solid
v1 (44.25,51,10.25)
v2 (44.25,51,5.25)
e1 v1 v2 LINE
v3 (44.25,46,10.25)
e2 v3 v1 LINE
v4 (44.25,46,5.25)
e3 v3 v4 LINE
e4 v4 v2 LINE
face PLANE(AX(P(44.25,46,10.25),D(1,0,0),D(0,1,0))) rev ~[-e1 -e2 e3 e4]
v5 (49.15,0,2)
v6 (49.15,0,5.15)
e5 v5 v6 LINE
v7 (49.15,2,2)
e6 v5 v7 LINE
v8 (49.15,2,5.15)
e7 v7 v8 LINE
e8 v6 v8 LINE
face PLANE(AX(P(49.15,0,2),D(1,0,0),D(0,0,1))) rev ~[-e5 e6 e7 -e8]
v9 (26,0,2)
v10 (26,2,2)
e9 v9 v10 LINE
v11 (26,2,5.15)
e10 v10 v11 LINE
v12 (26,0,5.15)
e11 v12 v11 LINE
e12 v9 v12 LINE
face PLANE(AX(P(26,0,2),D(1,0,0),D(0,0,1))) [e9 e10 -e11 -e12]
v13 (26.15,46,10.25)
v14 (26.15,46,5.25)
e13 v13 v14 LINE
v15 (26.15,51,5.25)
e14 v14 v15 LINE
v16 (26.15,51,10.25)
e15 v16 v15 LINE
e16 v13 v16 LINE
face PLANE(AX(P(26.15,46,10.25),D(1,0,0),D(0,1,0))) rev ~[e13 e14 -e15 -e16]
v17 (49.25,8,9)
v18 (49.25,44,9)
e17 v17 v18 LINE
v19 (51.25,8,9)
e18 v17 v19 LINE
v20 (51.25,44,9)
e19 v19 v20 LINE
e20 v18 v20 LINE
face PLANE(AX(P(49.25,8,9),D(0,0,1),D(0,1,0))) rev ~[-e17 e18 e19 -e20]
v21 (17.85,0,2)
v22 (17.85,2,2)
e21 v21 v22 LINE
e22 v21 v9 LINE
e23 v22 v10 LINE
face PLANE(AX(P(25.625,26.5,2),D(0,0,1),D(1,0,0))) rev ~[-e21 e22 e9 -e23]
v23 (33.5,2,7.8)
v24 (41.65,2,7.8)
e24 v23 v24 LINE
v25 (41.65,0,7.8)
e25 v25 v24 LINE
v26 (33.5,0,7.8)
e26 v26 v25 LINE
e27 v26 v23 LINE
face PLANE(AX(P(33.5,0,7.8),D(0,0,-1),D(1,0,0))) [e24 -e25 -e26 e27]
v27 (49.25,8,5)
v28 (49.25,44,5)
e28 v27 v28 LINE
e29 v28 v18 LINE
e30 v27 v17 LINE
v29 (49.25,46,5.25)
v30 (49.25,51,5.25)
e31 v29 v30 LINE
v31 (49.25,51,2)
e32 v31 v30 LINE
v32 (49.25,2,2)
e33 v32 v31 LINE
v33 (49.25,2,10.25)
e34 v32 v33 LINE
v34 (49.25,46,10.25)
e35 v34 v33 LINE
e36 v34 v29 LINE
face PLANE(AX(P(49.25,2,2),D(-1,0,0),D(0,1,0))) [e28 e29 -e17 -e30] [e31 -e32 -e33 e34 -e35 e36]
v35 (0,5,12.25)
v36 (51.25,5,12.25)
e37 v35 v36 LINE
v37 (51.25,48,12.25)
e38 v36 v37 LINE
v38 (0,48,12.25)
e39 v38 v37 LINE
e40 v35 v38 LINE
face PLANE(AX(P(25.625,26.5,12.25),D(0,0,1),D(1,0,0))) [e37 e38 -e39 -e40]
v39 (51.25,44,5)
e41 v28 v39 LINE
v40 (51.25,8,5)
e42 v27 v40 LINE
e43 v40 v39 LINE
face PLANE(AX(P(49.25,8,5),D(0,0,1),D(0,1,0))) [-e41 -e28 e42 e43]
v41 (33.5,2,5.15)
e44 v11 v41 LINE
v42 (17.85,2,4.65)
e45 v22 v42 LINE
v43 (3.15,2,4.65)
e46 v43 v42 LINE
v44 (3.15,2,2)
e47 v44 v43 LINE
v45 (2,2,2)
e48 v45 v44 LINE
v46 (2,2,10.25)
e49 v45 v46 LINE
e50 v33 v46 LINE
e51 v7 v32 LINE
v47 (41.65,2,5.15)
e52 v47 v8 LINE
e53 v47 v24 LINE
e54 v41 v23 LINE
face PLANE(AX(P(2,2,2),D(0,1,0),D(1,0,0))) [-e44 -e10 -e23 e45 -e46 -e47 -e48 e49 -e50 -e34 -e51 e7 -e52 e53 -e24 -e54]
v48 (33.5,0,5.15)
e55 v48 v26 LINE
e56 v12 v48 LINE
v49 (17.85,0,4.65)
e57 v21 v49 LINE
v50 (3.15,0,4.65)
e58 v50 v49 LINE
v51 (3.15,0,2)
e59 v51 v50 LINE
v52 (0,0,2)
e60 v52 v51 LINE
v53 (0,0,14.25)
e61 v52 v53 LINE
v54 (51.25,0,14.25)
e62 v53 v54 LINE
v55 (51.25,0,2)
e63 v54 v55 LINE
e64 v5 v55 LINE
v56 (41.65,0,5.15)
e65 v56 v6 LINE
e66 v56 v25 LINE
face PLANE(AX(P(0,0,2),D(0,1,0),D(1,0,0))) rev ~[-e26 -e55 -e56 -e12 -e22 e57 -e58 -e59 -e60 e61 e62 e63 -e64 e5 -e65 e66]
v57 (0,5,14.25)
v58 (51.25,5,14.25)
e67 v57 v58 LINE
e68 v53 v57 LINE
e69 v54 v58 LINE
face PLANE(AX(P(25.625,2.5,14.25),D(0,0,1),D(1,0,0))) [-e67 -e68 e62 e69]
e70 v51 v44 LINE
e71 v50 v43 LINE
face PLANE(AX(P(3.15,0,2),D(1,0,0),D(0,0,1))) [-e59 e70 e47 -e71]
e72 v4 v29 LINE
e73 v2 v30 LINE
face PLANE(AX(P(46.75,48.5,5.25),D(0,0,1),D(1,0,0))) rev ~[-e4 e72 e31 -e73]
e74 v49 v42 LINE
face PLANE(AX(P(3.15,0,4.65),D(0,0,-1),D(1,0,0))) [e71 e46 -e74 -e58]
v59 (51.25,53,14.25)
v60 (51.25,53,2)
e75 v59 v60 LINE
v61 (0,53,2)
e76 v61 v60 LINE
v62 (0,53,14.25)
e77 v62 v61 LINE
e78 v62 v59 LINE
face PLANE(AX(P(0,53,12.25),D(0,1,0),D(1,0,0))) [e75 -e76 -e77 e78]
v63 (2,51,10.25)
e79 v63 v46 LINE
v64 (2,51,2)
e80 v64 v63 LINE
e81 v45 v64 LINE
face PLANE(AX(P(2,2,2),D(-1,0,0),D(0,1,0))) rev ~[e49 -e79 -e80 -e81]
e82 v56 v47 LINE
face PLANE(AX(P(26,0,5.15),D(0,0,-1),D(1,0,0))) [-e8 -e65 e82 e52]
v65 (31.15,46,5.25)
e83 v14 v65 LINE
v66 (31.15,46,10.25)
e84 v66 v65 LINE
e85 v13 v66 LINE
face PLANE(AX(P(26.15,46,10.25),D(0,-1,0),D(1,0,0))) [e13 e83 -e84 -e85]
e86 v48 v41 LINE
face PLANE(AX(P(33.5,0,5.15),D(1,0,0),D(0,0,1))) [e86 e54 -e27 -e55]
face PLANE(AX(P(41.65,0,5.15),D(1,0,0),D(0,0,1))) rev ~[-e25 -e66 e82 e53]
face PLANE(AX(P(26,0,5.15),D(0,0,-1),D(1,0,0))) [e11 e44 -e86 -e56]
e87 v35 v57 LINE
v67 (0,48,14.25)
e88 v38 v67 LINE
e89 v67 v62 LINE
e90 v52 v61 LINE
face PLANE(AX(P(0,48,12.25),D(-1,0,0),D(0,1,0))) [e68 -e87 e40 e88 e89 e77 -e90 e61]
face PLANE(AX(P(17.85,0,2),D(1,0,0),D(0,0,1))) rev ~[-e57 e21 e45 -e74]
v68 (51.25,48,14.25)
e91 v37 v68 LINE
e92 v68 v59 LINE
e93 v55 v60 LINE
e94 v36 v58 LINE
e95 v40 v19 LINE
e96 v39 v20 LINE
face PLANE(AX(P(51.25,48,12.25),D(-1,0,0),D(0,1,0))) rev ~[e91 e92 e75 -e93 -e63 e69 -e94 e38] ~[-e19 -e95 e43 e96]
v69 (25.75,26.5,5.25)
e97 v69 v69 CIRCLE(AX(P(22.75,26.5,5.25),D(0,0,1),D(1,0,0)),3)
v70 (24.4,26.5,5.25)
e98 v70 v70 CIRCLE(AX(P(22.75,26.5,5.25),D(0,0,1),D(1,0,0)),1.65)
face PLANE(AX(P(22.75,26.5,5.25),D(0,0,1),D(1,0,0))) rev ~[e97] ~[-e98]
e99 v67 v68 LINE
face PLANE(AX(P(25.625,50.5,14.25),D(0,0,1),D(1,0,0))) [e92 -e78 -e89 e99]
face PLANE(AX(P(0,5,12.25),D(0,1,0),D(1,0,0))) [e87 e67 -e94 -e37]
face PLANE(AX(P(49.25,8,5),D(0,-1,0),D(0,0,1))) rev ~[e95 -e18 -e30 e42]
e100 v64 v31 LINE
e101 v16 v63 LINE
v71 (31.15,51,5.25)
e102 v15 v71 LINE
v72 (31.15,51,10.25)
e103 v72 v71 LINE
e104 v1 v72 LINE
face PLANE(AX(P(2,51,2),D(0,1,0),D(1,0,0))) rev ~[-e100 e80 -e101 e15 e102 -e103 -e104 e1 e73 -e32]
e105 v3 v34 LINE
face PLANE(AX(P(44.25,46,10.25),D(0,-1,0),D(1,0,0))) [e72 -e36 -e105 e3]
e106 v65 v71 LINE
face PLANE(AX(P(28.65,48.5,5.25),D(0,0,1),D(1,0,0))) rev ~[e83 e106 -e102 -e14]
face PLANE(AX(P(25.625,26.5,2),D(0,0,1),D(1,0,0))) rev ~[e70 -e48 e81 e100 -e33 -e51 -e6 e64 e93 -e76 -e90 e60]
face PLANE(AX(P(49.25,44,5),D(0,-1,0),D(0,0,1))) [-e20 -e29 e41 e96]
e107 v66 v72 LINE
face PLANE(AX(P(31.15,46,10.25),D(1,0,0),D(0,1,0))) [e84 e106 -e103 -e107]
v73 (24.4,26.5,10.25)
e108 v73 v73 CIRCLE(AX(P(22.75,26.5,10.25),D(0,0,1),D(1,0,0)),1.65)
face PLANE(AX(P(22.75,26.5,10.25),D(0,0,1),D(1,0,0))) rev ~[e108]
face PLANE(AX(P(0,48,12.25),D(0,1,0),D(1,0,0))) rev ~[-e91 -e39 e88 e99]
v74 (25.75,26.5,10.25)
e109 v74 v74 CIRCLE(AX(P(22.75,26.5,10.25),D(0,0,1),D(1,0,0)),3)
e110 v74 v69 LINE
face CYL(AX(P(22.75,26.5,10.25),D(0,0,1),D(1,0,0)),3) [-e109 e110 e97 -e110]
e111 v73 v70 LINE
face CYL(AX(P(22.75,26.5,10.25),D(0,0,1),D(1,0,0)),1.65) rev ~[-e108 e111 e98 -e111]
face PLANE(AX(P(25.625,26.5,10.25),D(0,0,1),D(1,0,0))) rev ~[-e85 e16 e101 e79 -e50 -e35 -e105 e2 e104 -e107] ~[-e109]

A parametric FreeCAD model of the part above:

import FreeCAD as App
import Part
import Sketcher

V = App.Vector


def add_polygon(sketch, points):
    """Adds a closed chain of lines whose ends are joined by coincident constraints."""
    first, n = sketch.GeometryCount, len(points)
    for a, b in zip(points, points[1:] + points[:1]):
        sketch.addGeometry(Part.LineSegment(App.Vector(*a, 0), App.Vector(*b, 0)), False)
    for i in range(n):
        sketch.addConstraint(Sketcher.Constraint("Coincident", first + i, 2, first + (i + 1) % n, 1))

doc = App.newDocument("Part")
body = doc.addObject("PartDesign::Body", "Body")

# Sketch on YZ plane
sketch1 = body.newObject("Sketcher::SketchObject", "Sketch")
sketch1.AttachmentSupport = (doc.getObject("YZ_Plane"), [""])
sketch1.MapMode = "FlatFace"
sketch1.AttachmentOffset = App.Placement(V(0, 0, 49.25), App.Rotation())
add_polygon(sketch1, [(8, 9), (8, 5), (44, 5), (44, 9)])  # lines 0-3
sketch1.addConstraint(Sketcher.Constraint("Vertical", 0))
sketch1.addConstraint(Sketcher.Constraint("Horizontal", 1))
sketch1.addConstraint(Sketcher.Constraint("Vertical", 2))
sketch1.addConstraint(Sketcher.Constraint("Horizontal", 3))
sketch1.addConstraint(Sketcher.Constraint("DistanceX", 1, 1, 1, 2, 36.0))
sketch1.addConstraint(Sketcher.Constraint("DistanceY", 0, 2, 0, 1, 4.0))
sketch1.addConstraint(Sketcher.Constraint("DistanceX", -1, 1, 0, 2, 8.0))
sketch1.addConstraint(Sketcher.Constraint("DistanceY", -1, 1, 0, 2, 5.0))
pad1 = body.newObject("PartDesign::Pad", "Pad")
pad1.Profile = sketch1
pad1.Length = 2
body2 = doc.addObject("PartDesign::Body", "Body001")
body2.AllowCompound = True

# Sketch on XY plane
sketch2 = body2.newObject("Sketcher::SketchObject", "Sketch001")
sketch2.AttachmentSupport = (doc.getObject("XY_Plane001"), [""])
sketch2.MapMode = "FlatFace"
sketch2.AttachmentOffset = App.Placement(V(0, 0, 12.25), App.Rotation())
add_polygon(sketch2, [(0, 5), (0, 0), (51, 0), (51, 5)])  # lines 0-3
add_polygon(sketch2, [(0, 53), (0, 48), (51, 48), (51, 53)])  # lines 4-7
sketch2.addConstraint(Sketcher.Constraint("Vertical", 0))
sketch2.addConstraint(Sketcher.Constraint("Horizontal", 1))
sketch2.addConstraint(Sketcher.Constraint("Vertical", 2))
sketch2.addConstraint(Sketcher.Constraint("Horizontal", 3))
sketch2.addConstraint(Sketcher.Constraint("Vertical", 4))
sketch2.addConstraint(Sketcher.Constraint("Horizontal", 5))
sketch2.addConstraint(Sketcher.Constraint("Vertical", 6))
sketch2.addConstraint(Sketcher.Constraint("Horizontal", 7))
sketch2.addConstraint(Sketcher.Constraint("Coincident", 0, 2, -1, 1))
sketch2.addConstraint(Sketcher.Constraint("PointOnObject", 4, 2, -2))
sketch2.addConstraint(Sketcher.Constraint("Vertical", 2, 2, 5, 2))
sketch2.addConstraint(Sketcher.Constraint("Equal", 2, 4))
sketch2.addConstraint(Sketcher.Constraint("DistanceY", 0, 2, 0, 1, 5.0))
sketch2.addConstraint(Sketcher.Constraint("DistanceY", -1, 1, 4, 2, 48.0))
sketch2.addConstraint(Sketcher.Constraint("DistanceX", 1, 1, 1, 2, 51.25))
pad2 = body2.newObject("PartDesign::Pad", "Pad001")
pad2.Profile = sketch2
pad2.Length = 2
body3 = doc.addObject("PartDesign::Body", "Body002")

# Sketch on XZ plane
sketch3 = body3.newObject("Sketcher::SketchObject", "Sketch002")
sketch3.AttachmentSupport = (doc.getObject("XZ_Plane002"), [""])
sketch3.MapMode = "FlatFace"
add_polygon(sketch3, [(33.5, 7.8), (33.5, 5.2), (41.6, 5.2), (41.6, 7.8)])  # lines 0-3
sketch3.addConstraint(Sketcher.Constraint("Vertical", 0))
sketch3.addConstraint(Sketcher.Constraint("Horizontal", 1))
sketch3.addConstraint(Sketcher.Constraint("Vertical", 2))
sketch3.addConstraint(Sketcher.Constraint("Horizontal", 3))
sketch3.addConstraint(Sketcher.Constraint("DistanceX", 1, 1, 1, 2, 8.15))
sketch3.addConstraint(Sketcher.Constraint("DistanceY", 0, 2, 0, 1, 2.65))
sketch3.addConstraint(Sketcher.Constraint("DistanceX", -1, 1, 0, 2, 33.5))
sketch3.addConstraint(Sketcher.Constraint("DistanceY", -1, 1, 2, 2, 7.8))
pad3 = body3.newObject("PartDesign::Pad", "Pad002")
pad3.Profile = sketch3
pad3.Length = 2
pad3.Reversed = True
body4 = doc.addObject("PartDesign::Body", "Body003")
body4.AllowCompound = True

# Sketch on XZ plane
sketch4 = body4.newObject("Sketcher::SketchObject", "Sketch003")
sketch4.AttachmentSupport = (doc.getObject("XZ_Plane003"), [""])
sketch4.MapMode = "FlatFace"
add_polygon(sketch4, [(3.1, 4.7), (3.1, 2), (17.9, 2), (17.9, 4.7)])  # lines 0-3
add_polygon(sketch4, [(26, 5.2), (26, 2), (49.1, 2), (49.1, 5.2)])  # lines 4-7
sketch4.addConstraint(Sketcher.Constraint("Vertical", 0))
sketch4.addConstraint(Sketcher.Constraint("Horizontal", 1))
sketch4.addConstraint(Sketcher.Constraint("Vertical", 2))
sketch4.addConstraint(Sketcher.Constraint("Horizontal", 3))
sketch4.addConstraint(Sketcher.Constraint("Vertical", 4))
sketch4.addConstraint(Sketcher.Constraint("Horizontal", 5))
sketch4.addConstraint(Sketcher.Constraint("Vertical", 6))
sketch4.addConstraint(Sketcher.Constraint("Horizontal", 7))
sketch4.addConstraint(Sketcher.Constraint("Horizontal", 1, 2, 4, 2))
sketch4.addConstraint(Sketcher.Constraint("DistanceX", 1, 1, 1, 2, 14.7))
sketch4.addConstraint(Sketcher.Constraint("DistanceY", -1, 1, 0, 2, 2.0))
sketch4.addConstraint(Sketcher.Constraint("DistanceX", -1, 1, 4, 2, 26.0))
sketch4.addConstraint(Sketcher.Constraint("DistanceX", 0, 2, 5, 2, 46.0))
sketch4.addConstraint(Sketcher.Constraint("DistanceX", 5, 1, 5, 2, 23.15))
sketch4.addConstraint(Sketcher.Constraint("DistanceY", 0, 2, 0, 1, 2.65))
sketch4.addConstraint(Sketcher.Constraint("DistanceY", 4, 2, 4, 1, 3.15))
pad4 = body4.newObject("PartDesign::Pad", "Pad003")
pad4.Profile = sketch4
pad4.Length = 2
pad4.Reversed = True
body5 = doc.addObject("PartDesign::Body", "Body004")
body5.AllowCompound = True

# Sketch on XY plane
sketch5 = body5.newObject("Sketcher::SketchObject", "Sketch004")
sketch5.AttachmentSupport = (doc.getObject("XY_Plane004"), [""])
sketch5.MapMode = "FlatFace"
sketch5.AttachmentOffset = App.Placement(V(0, 0, 10.25), App.Rotation())
sketch5.addGeometry(Part.Circle(V(22.8, 26.5, 0), V(0, 0, 1), 1.6), False)
sketch5.addConstraint(Sketcher.Constraint("Diameter", 0, 3.3))
sketch5.addConstraint(Sketcher.Constraint("DistanceY", -1, 1, 0, 3, 26.5))
sketch5.addConstraint(Sketcher.Constraint("DistanceX", -1, 1, 0, 3, 22.75))
pad5 = body5.newObject("PartDesign::Pad", "Pad004")
pad5.Profile = sketch5
pad5.Length = 5
pad5.Reversed = True
doc.recompute()

boolean = body5.newObject("PartDesign::Boolean", "Boolean")
boolean.Type = "Fuse"
boolean.addObjects([body3])
doc.recompute()

boolean2 = body5.newObject("PartDesign::Boolean", "Boolean001")
boolean2.Type = "Fuse"
boolean2.addObjects([body4])
body6 = doc.addObject("PartDesign::Body", "Body005")

# Sketch on XY plane
sketch6 = body6.newObject("Sketcher::SketchObject", "Sketch005")
sketch6.AttachmentSupport = (doc.getObject("XY_Plane005"), [""])
sketch6.MapMode = "FlatFace"
add_polygon(sketch6, [(0, 53), (0, 0), (51, 0), (51, 53)])  # lines 0-3
add_polygon(sketch6, [(49, 2), (2, 2), (2, 51), (49, 51)])  # lines 4-7
sketch6.addConstraint(Sketcher.Constraint("Vertical", 0))
sketch6.addConstraint(Sketcher.Constraint("Horizontal", 1))
sketch6.addConstraint(Sketcher.Constraint("Vertical", 2))
sketch6.addConstraint(Sketcher.Constraint("Horizontal", 3))
sketch6.addConstraint(Sketcher.Constraint("Horizontal", 4))
sketch6.addConstraint(Sketcher.Constraint("Vertical", 5))
sketch6.addConstraint(Sketcher.Constraint("Horizontal", 6))
sketch6.addConstraint(Sketcher.Constraint("Vertical", 7))
sketch6.addConstraint(Sketcher.Constraint("Coincident", 0, 2, -1, 1))
sketch6.addConstraint(Sketcher.Constraint("DistanceY", 0, 2, 0, 1, 53.0))
sketch6.addConstraint(Sketcher.Constraint("DistanceY", 5, 1, 5, 2, 49.0))
sketch6.addConstraint(Sketcher.Constraint("DistanceX", -1, 1, 4, 2, 2.0))
sketch6.addConstraint(Sketcher.Constraint("DistanceY", -1, 1, 4, 2, 2.0))
sketch6.addConstraint(Sketcher.Constraint("DistanceX", 6, 2, 2, 2, 2.0))
sketch6.addConstraint(Sketcher.Constraint("DistanceX", 1, 1, 1, 2, 51.25))
pad6 = body6.newObject("PartDesign::Pad", "Pad005")
pad6.Profile = sketch6
pad6.Length = 10.25
body7 = doc.addObject("PartDesign::Body", "Body006")
doc.recompute()

body6.Placement = App.Placement(V(0, 0, 2), App.Rotation(V(0, 0, 1), 0))
boolean3 = body7.newObject("PartDesign::Boolean", "Boolean002")
boolean3.Type = "Fuse"
boolean3.addObjects([body6])
body8 = doc.addObject("PartDesign::Body", "Body007")

# Sketch on XY plane
sketch7 = body8.newObject("Sketcher::SketchObject", "Sketch006")
sketch7.AttachmentSupport = (doc.getObject("XY_Plane007"), [""])
sketch7.MapMode = "FlatFace"
add_polygon(sketch7, [(0, 53), (0, 0), (51, 0), (51, 53)])  # lines 0-3
sketch7.addConstraint(Sketcher.Constraint("Vertical", 0))
sketch7.addConstraint(Sketcher.Constraint("Horizontal", 1))
sketch7.addConstraint(Sketcher.Constraint("Vertical", 2))
sketch7.addConstraint(Sketcher.Constraint("Horizontal", 3))
sketch7.addConstraint(Sketcher.Constraint("Coincident", 0, 2, -1, 1))
sketch7.addConstraint(Sketcher.Constraint("DistanceY", 0, 2, 0, 1, 53.0))
sketch7.addConstraint(Sketcher.Constraint("DistanceX", 1, 1, 1, 2, 51.25))
pad7 = body8.newObject("PartDesign::Pad", "Pad006")
pad7.Profile = sketch7
pad7.Length = 2
body9 = doc.addObject("PartDesign::Body", "Body008")
doc.recompute()

body8.Placement = App.Placement(V(0, 0, 10.25), App.Rotation(V(0, 0, 1), 0))
boolean4 = body9.newObject("PartDesign::Boolean", "Boolean003")
boolean4.Type = "Fuse"
boolean4.addObjects([body8])
doc.recompute()

boolean5 = body9.newObject("PartDesign::Boolean", "Boolean004")
boolean5.Type = "Fuse"
boolean5.addObjects([body7])
body10 = doc.addObject("PartDesign::Body", "Body009")
body10.AllowCompound = True

# Sketch on XY plane
sketch8 = body10.newObject("Sketcher::SketchObject", "Sketch007")
sketch8.AttachmentSupport = (doc.getObject("XY_Plane009"), [""])
sketch8.MapMode = "FlatFace"
sketch8.AttachmentOffset = App.Placement(V(0, 0, 10.25), App.Rotation())
add_polygon(sketch8, [(26, 51), (26, 46), (31, 46), (31, 51)])  # lines 0-3
add_polygon(sketch8, [(44, 51), (44, 46), (49, 46), (49, 51)])  # lines 4-7
sketch8.addConstraint(Sketcher.Constraint("Vertical", 0))
sketch8.addConstraint(Sketcher.Constraint("Horizontal", 1))
sketch8.addConstraint(Sketcher.Constraint("Vertical", 2))
sketch8.addConstraint(Sketcher.Constraint("Horizontal", 3))
sketch8.addConstraint(Sketcher.Constraint("Vertical", 4))
sketch8.addConstraint(Sketcher.Constraint("Horizontal", 5))
sketch8.addConstraint(Sketcher.Constraint("Vertical", 6))
sketch8.addConstraint(Sketcher.Constraint("Horizontal", 7))
sketch8.addConstraint(Sketcher.Constraint("Horizontal", 1, 2, 4, 2))
sketch8.addConstraint(Sketcher.Constraint("Horizontal", 3, 2, 6, 2))
sketch8.addConstraint(Sketcher.Constraint("Equal", 3, 5))
sketch8.addConstraint(Sketcher.Constraint("Equal", 7, 0))
sketch8.addConstraint(Sketcher.Constraint("DistanceX", 1, 1, 1, 2, 5.0))
sketch8.addConstraint(Sketcher.Constraint("DistanceY", -1, 1, 0, 2, 46.0))
sketch8.addConstraint(Sketcher.Constraint("DistanceX", 1, 2, 4, 2, 13.1))
sketch8.addConstraint(Sketcher.Constraint("DistanceX", -1, 1, 0, 2, 26.15))
pad8 = body10.newObject("PartDesign::Pad", "Pad007")
pad8.Profile = sketch8
pad8.Length = 5
pad8.Reversed = True
body11 = doc.addObject("PartDesign::Body", "Body010")

# Sketch on XY plane
sketch9 = body11.newObject("Sketcher::SketchObject", "Sketch008")
sketch9.AttachmentSupport = (doc.getObject("XY_Plane010"), [""])
sketch9.MapMode = "FlatFace"
sketch9.AttachmentOffset = App.Placement(V(0, 0, 10.25), App.Rotation())
sketch9.addGeometry(Part.Circle(V(22.8, 26.5, 0), V(0, 0, 1), 3), False)
sketch9.addConstraint(Sketcher.Constraint("Diameter", 0, 6.0))
sketch9.addConstraint(Sketcher.Constraint("DistanceY", -1, 1, 0, 3, 26.5))
sketch9.addConstraint(Sketcher.Constraint("DistanceX", -1, 1, 0, 3, 22.75))
pad9 = body11.newObject("PartDesign::Pad", "Pad008")
pad9.Profile = sketch9
pad9.Length = 5
pad9.Reversed = True
doc.recompute()

boolean6 = body11.newObject("PartDesign::Boolean", "Boolean005")
boolean6.Type = "Fuse"
boolean6.addObjects([body9])
doc.recompute()

boolean7 = body11.newObject("PartDesign::Boolean", "Boolean006")
boolean7.Type = "Fuse"
boolean7.addObjects([body10])
doc.recompute()

boolean8 = body11.newObject("PartDesign::Boolean", "Boolean007")
boolean8.Type = "Cut"
boolean8.addObjects([body5])
doc.recompute()

boolean9 = body11.newObject("PartDesign::Boolean", "Boolean008")
boolean9.Type = "Fuse"
boolean9.addObjects([body2])
doc.recompute()

boolean10 = body11.newObject("PartDesign::Boolean", "Boolean009")
boolean10.Type = "Cut"
boolean10.addObjects([body])

doc.recompute()
